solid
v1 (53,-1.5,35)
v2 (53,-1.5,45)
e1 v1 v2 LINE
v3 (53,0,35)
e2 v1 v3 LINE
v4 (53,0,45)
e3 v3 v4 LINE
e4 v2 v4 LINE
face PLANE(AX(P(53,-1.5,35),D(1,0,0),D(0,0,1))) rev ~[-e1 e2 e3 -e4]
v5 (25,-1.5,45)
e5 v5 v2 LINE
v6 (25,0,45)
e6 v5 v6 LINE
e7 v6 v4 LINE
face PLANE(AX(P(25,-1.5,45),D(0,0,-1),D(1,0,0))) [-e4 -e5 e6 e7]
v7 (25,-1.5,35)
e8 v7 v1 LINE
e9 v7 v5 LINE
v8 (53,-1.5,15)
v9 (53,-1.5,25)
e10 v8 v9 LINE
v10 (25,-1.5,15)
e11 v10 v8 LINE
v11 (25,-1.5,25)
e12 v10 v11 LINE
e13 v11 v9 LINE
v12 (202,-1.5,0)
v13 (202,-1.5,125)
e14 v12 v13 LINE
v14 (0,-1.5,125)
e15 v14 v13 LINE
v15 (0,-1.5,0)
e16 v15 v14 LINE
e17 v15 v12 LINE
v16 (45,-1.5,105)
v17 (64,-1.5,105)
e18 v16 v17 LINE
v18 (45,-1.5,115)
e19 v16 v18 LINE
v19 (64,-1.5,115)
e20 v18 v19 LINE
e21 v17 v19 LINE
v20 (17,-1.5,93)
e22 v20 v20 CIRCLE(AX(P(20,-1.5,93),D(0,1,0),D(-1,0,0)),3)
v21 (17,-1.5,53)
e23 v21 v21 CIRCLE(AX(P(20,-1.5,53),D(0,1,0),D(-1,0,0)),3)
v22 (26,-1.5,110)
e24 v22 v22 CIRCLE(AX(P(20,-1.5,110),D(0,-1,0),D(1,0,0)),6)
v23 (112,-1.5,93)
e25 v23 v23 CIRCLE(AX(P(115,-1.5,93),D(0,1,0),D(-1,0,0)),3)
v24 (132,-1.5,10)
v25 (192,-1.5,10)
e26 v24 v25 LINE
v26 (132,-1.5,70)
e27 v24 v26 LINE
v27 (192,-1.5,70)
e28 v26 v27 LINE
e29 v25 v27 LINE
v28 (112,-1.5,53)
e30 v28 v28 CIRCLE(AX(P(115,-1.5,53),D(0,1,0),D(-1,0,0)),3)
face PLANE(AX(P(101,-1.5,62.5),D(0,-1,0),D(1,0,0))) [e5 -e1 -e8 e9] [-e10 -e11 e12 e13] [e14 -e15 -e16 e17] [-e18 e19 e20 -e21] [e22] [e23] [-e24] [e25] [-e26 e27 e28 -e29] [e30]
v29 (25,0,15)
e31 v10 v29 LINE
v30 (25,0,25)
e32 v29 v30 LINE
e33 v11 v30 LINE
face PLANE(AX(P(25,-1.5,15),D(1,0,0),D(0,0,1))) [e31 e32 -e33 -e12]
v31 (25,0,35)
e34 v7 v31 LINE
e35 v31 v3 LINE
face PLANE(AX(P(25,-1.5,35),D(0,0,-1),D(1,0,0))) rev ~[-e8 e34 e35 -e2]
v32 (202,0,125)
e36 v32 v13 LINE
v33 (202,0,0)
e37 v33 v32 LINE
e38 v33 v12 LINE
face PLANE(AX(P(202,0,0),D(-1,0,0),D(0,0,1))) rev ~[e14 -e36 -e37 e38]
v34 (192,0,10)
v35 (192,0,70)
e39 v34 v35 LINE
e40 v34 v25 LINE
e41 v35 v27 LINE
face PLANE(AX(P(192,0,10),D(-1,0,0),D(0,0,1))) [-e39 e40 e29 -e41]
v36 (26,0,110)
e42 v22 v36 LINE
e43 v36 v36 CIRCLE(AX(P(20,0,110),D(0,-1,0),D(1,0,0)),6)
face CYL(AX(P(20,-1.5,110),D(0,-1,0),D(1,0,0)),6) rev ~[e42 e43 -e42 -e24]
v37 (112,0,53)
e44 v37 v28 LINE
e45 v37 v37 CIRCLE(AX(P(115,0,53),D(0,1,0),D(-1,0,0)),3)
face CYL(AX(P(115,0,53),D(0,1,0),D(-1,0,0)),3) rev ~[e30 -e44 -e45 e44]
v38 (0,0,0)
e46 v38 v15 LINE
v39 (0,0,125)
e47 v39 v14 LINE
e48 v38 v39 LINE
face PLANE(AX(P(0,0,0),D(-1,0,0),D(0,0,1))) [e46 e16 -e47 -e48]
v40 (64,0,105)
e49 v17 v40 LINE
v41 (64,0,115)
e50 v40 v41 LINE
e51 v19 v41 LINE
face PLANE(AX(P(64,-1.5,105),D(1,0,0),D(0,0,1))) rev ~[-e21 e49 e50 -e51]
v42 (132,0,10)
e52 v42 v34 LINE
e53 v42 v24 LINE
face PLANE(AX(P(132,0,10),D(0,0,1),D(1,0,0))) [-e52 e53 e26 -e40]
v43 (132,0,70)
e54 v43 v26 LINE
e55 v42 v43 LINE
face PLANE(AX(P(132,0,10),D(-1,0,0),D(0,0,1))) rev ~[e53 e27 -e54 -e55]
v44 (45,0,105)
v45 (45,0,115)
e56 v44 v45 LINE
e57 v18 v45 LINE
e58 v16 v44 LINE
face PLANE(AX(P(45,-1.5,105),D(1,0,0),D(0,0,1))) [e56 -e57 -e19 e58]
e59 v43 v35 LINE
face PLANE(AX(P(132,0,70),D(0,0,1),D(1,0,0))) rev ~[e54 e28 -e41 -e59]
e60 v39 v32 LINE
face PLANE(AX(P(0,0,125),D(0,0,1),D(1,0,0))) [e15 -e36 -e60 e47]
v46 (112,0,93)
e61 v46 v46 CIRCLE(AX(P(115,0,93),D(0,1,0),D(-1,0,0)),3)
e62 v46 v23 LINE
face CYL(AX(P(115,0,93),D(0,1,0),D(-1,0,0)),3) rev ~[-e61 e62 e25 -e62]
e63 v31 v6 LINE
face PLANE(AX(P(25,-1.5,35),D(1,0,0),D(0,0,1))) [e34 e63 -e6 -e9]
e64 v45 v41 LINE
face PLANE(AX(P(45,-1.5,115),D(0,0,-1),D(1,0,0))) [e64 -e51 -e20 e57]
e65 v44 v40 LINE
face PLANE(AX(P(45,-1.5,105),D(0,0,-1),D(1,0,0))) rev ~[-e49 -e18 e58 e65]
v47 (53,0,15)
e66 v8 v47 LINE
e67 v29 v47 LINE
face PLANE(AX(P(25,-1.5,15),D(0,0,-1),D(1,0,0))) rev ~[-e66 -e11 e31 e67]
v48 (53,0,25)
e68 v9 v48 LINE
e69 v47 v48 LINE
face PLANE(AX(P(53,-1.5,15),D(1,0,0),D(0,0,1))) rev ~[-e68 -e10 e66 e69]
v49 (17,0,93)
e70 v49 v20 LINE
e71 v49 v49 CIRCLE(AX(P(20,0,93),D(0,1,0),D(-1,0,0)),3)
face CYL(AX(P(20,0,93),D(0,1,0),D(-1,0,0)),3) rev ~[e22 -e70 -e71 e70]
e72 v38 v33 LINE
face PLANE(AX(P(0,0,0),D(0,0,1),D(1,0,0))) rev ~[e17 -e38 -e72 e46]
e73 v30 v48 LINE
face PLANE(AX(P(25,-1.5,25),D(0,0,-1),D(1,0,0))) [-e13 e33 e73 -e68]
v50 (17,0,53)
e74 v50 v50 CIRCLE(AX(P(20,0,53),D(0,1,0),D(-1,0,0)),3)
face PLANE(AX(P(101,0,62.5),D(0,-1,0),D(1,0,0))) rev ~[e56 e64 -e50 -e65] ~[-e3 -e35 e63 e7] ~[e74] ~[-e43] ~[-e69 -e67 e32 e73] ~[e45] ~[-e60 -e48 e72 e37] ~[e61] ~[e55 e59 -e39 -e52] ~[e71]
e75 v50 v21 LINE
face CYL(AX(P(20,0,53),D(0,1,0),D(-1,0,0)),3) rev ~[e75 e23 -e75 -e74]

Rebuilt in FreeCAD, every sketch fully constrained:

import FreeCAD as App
import Part
import Sketcher

doc = App.newDocument("Part")
body = doc.addObject("PartDesign::Body", "Body")

sketch1 = body.newObject("Sketcher::SketchObject", "Sketch")
sketch1.AttachmentSupport = (doc.getObject("XZ_Plane"), [""])
sketch1.MapMode = "FlatFace"
sketch1.addGeometry([
    Part.LineSegment(App.Vector(0, 125, 0), App.Vector(0, 0, 0)),
    Part.LineSegment(App.Vector(0, 0, 0), App.Vector(202, 0, 0)),
    Part.LineSegment(App.Vector(202, 0, 0), App.Vector(202, 125, 0)),
    Part.LineSegment(App.Vector(202, 125, 0), App.Vector(0, 125, 0)),
    Part.LineSegment(App.Vector(192, 10, 0), App.Vector(132, 10, 0)),
    Part.LineSegment(App.Vector(132, 10, 0), App.Vector(132, 70, 0)),
    Part.LineSegment(App.Vector(132, 70, 0), App.Vector(192, 70, 0)),
    Part.LineSegment(App.Vector(192, 70, 0), App.Vector(192, 10, 0)),
], False)
sketch1.addConstraint([
    Sketcher.Constraint("Coincident", 0, 2, 1, 1),
    Sketcher.Constraint("Coincident", 1, 2, 2, 1),
    Sketcher.Constraint("Coincident", 2, 2, 3, 1),
    Sketcher.Constraint("Coincident", 3, 2, 0, 1),
    Sketcher.Constraint("Coincident", 4, 2, 5, 1),
    Sketcher.Constraint("Coincident", 5, 2, 6, 1),
    Sketcher.Constraint("Coincident", 6, 2, 7, 1),
    Sketcher.Constraint("Coincident", 7, 2, 4, 1),
    Sketcher.Constraint("Vertical", 0),
    Sketcher.Constraint("Horizontal", 1),
    Sketcher.Constraint("Vertical", 2),
    Sketcher.Constraint("Horizontal", 3),
    Sketcher.Constraint("Horizontal", 4),
    Sketcher.Constraint("Vertical", 5),
    Sketcher.Constraint("Horizontal", 6),
    Sketcher.Constraint("Vertical", 7),
    Sketcher.Constraint("Coincident", 0, 2, -1, 1),
    Sketcher.Constraint("Equal", 6, 5),
    Sketcher.Constraint("DistanceX", 1, 1, 1, 2, 202.0),
    Sketcher.Constraint("DistanceX", 4, 2, 4, 1, 60.0),
    Sketcher.Constraint("DistanceY", 0, 2, 0, 1, 125.0),
    Sketcher.Constraint("DistanceX", -1, 1, 4, 2, 132.0),
    Sketcher.Constraint("DistanceY", -1, 1, 4, 2, 10.0),
])
pad1 = body.newObject("PartDesign::Pad", "Pad")
pad1.Profile = sketch1
pad1.Length = 1.5

sketch2 = body.newObject("Sketcher::SketchObject", "Sketch001")
sketch2.AttachmentSupport = (doc.getObject("XZ_Plane"), [""])
sketch2.MapMode = "FlatFace"
sketch2.AttachmentOffset = App.Placement(App.Vector(0, 0, 1.5), App.Rotation())
sketch2.addGeometry([
    Part.LineSegment(App.Vector(25, 25, 0), App.Vector(25, 15, 0)),
    Part.LineSegment(App.Vector(25, 15, 0), App.Vector(53, 15, 0)),
    Part.LineSegment(App.Vector(53, 15, 0), App.Vector(53, 25, 0)),
    Part.LineSegment(App.Vector(53, 25, 0), App.Vector(25, 25, 0)),
    Part.LineSegment(App.Vector(25, 45, 0), App.Vector(25, 35, 0)),
    Part.LineSegment(App.Vector(25, 35, 0), App.Vector(53, 35, 0)),
    Part.LineSegment(App.Vector(53, 35, 0), App.Vector(53, 45, 0)),
    Part.LineSegment(App.Vector(53, 45, 0), App.Vector(25, 45, 0)),
    Part.Circle(App.Vector(20, 110, 0), App.Vector(0, 0, 1), 6),
    Part.LineSegment(App.Vector(45, 115, 0), App.Vector(45, 105, 0)),
    Part.LineSegment(App.Vector(45, 105, 0), App.Vector(64, 105, 0)),
    Part.LineSegment(App.Vector(64, 105, 0), App.Vector(64, 115, 0)),
    Part.LineSegment(App.Vector(64, 115, 0), App.Vector(45, 115, 0)),
], False)
sketch2.addConstraint([
    Sketcher.Constraint("Coincident", 0, 2, 1, 1),
    Sketcher.Constraint("Coincident", 1, 2, 2, 1),
    Sketcher.Constraint("Coincident", 2, 2, 3, 1),
    Sketcher.Constraint("Coincident", 3, 2, 0, 1),
    Sketcher.Constraint("Coincident", 4, 2, 5, 1),
    Sketcher.Constraint("Coincident", 5, 2, 6, 1),
    Sketcher.Constraint("Coincident", 6, 2, 7, 1),
    Sketcher.Constraint("Coincident", 7, 2, 4, 1),
    Sketcher.Constraint("Coincident", 9, 2, 10, 1),
    Sketcher.Constraint("Coincident", 10, 2, 11, 1),
    Sketcher.Constraint("Coincident", 11, 2, 12, 1),
    Sketcher.Constraint("Coincident", 12, 2, 9, 1),
    Sketcher.Constraint("Vertical", 0),
    Sketcher.Constraint("Horizontal", 1),
    Sketcher.Constraint("Vertical", 2),
    Sketcher.Constraint("Horizontal", 3),
    Sketcher.Constraint("Vertical", 4),
    Sketcher.Constraint("Horizontal", 5),
    Sketcher.Constraint("Vertical", 6),
    Sketcher.Constraint("Horizontal", 7),
    Sketcher.Constraint("Vertical", 9),
    Sketcher.Constraint("Horizontal", 10),
    Sketcher.Constraint("Vertical", 11),
    Sketcher.Constraint("Horizontal", 12),
    Sketcher.Constraint("Vertical", 3, 2, 4, 2),
    Sketcher.Constraint("Vertical", 2, 2, 5, 2),
    Sketcher.Constraint("Equal", 2, 4),
    Sketcher.Constraint("Equal", 6, 9),
    Sketcher.Constraint("Diameter", 8, 12.0),
    Sketcher.Constraint("DistanceX", 1, 1, 1, 2, 28.0),
    Sketcher.Constraint("DistanceX", 10, 1, 10, 2, 19.0),
    Sketcher.Constraint("DistanceY", 0, 2, 0, 1, 10.0),
    Sketcher.Constraint("DistanceX", -1, 1, 8, 3, 20.0),
    Sketcher.Constraint("DistanceY", -1, 1, 8, 3, 110.0),
    Sketcher.Constraint("DistanceX", -1, 1, 0, 2, 25.0),
    Sketcher.Constraint("DistanceY", -1, 1, 0, 2, 15.0),
    Sketcher.Constraint("DistanceY", -1, 1, 4, 2, 35.0),
    Sketcher.Constraint("DistanceX", -1, 1, 9, 2, 45.0),
    Sketcher.Constraint("DistanceY", -1, 1, 9, 2, 105.0),
])
pocket1 = body.newObject("PartDesign::Pocket", "Pocket")
pocket1.Profile = sketch2
pocket1.Type = "ThroughAll"

sketch3 = body.newObject("Sketcher::SketchObject", "Sketch002")
sketch3.AttachmentSupport = (doc.getObject("XZ_Plane"), [""])
sketch3.MapMode = "FlatFace"
sketch3.addGeometry([
    Part.Circle(App.Vector(20, 93, 0), App.Vector(0, 0, 1), 3),
    Part.Circle(App.Vector(115, 53, 0), App.Vector(0, 0, 1), 3),
    Part.Circle(App.Vector(20, 53, 0), App.Vector(0, 0, 1), 3),
    Part.Circle(App.Vector(115, 93, 0), App.Vector(0, 0, 1), 3),
], False)
sketch3.addConstraint([
    Sketcher.Constraint("Equal", 0, 1),
    Sketcher.Constraint("Equal", 1, 2),
    Sketcher.Constraint("Equal", 2, 3),
    Sketcher.Constraint("Horizontal", 1, 3, 2, 3),
    Sketcher.Constraint("Horizontal", 0, 3, 3, 3),
    Sketcher.Constraint("Vertical", 0, 3, 2, 3),
    Sketcher.Constraint("Vertical", 1, 3, 3, 3),
    Sketcher.Constraint("Diameter", 0, 6.0),
    Sketcher.Constraint("DistanceX", -1, 1, 0, 3, 20.0),
    Sketcher.Constraint("DistanceY", -1, 1, 0, 3, 93.0),
    Sketcher.Constraint("DistanceX", -1, 1, 1, 3, 115.0),
    Sketcher.Constraint("DistanceY", -1, 1, 1, 3, 53.0),
])
pocket2 = body.newObject("PartDesign::Pocket", "Pocket001")
pocket2.Profile = sketch3
pocket2.Type = "ThroughAll"
pocket2.Reversed = True

doc.recompute()
